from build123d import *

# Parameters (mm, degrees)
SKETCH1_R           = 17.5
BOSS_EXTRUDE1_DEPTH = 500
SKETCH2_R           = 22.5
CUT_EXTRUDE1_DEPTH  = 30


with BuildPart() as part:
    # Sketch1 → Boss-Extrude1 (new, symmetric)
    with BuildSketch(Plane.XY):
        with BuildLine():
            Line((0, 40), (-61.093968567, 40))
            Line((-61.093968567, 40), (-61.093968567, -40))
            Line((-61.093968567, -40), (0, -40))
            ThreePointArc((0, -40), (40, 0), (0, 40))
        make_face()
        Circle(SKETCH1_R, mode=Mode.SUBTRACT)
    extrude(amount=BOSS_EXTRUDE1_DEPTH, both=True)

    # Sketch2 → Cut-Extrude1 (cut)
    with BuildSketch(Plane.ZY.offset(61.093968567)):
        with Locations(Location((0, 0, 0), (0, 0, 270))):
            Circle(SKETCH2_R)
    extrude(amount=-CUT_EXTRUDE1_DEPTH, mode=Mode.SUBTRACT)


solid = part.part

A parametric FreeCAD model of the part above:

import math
import FreeCAD as App
import Part
import Sketcher

doc = App.newDocument("Part")
body = doc.addObject("PartDesign::Body", "Body")

sketch1 = doc.addObject("Sketcher::SketchObject", "Sketch")
body.addObject(sketch1)
sketch1.AttachmentSupport = (doc.XY_Plane, [""])
sketch1.MapMode = "FlatFace"
sketch1.addGeometry([
    Part.LineSegment(App.Vector(0, 40, 0), App.Vector(-61.093969, 40, 0)),
    Part.LineSegment(App.Vector(-61.093969, 40, 0), App.Vector(-61.093969, -40, 0)),
    Part.LineSegment(App.Vector(-61.093969, -40, 0), App.Vector(0, -40, 0)),
    Part.ArcOfCircle(Part.Circle(App.Vector(0, 0, 0), App.Vector(0, 0, 1), 40), math.radians(-90), math.radians(90)),
    Part.Circle(App.Vector(0, 0, 0), App.Vector(0, 0, 1), 17.5),
], False)
sketch1.addConstraint([
    Sketcher.Constraint("Coincident", 0, 2, 1, 1),
    Sketcher.Constraint("Coincident", 1, 2, 2, 1),
    Sketcher.Constraint("Tangent", 2, 2, 3, 1),
    Sketcher.Constraint("Tangent", 3, 2, 0, 1),
    Sketcher.Constraint("Horizontal", 0),
    Sketcher.Constraint("Vertical", 1),
    Sketcher.Constraint("Horizontal", 2),
    Sketcher.Constraint("Coincident", 3, 3, -1, 1),
    Sketcher.Constraint("Coincident", 4, 3, -1, 1),
    Sketcher.Constraint("Diameter", 4, 35.0),
    Sketcher.Constraint("Radius", 3, 40.0),
    Sketcher.Constraint("DistanceX", 0, 2, 0, 1, 61.093969),
])
pad1 = doc.addObject("PartDesign::Pad", "Pad")
body.addObject(pad1)
pad1.Profile = sketch1
pad1.Length = 1000
pad1.Midplane = True

sketch2 = doc.addObject("Sketcher::SketchObject", "Sketch001")
body.addObject(sketch2)
sketch2.AttachmentSupport = (doc.YZ_Plane, [""])
sketch2.MapMode = "FlatFace"
sketch2.AttachmentOffset = App.Placement(App.Vector(0, 0, -61.093969), App.Rotation())
sketch2.addGeometry(Part.Circle(App.Vector(0, 0, 0), App.Vector(0, 0, 1), 22.5), False)
sketch2.addConstraint([
    Sketcher.Constraint("Coincident", 0, 3, -1, 1),
    Sketcher.Constraint("Diameter", 0, 45.0),
])
pocket1 = doc.addObject("PartDesign::Pocket", "Pocket")
body.addObject(pocket1)
pocket1.Profile = sketch2
pocket1.Length = 30
pocket1.Reversed = True

doc.recompute()
